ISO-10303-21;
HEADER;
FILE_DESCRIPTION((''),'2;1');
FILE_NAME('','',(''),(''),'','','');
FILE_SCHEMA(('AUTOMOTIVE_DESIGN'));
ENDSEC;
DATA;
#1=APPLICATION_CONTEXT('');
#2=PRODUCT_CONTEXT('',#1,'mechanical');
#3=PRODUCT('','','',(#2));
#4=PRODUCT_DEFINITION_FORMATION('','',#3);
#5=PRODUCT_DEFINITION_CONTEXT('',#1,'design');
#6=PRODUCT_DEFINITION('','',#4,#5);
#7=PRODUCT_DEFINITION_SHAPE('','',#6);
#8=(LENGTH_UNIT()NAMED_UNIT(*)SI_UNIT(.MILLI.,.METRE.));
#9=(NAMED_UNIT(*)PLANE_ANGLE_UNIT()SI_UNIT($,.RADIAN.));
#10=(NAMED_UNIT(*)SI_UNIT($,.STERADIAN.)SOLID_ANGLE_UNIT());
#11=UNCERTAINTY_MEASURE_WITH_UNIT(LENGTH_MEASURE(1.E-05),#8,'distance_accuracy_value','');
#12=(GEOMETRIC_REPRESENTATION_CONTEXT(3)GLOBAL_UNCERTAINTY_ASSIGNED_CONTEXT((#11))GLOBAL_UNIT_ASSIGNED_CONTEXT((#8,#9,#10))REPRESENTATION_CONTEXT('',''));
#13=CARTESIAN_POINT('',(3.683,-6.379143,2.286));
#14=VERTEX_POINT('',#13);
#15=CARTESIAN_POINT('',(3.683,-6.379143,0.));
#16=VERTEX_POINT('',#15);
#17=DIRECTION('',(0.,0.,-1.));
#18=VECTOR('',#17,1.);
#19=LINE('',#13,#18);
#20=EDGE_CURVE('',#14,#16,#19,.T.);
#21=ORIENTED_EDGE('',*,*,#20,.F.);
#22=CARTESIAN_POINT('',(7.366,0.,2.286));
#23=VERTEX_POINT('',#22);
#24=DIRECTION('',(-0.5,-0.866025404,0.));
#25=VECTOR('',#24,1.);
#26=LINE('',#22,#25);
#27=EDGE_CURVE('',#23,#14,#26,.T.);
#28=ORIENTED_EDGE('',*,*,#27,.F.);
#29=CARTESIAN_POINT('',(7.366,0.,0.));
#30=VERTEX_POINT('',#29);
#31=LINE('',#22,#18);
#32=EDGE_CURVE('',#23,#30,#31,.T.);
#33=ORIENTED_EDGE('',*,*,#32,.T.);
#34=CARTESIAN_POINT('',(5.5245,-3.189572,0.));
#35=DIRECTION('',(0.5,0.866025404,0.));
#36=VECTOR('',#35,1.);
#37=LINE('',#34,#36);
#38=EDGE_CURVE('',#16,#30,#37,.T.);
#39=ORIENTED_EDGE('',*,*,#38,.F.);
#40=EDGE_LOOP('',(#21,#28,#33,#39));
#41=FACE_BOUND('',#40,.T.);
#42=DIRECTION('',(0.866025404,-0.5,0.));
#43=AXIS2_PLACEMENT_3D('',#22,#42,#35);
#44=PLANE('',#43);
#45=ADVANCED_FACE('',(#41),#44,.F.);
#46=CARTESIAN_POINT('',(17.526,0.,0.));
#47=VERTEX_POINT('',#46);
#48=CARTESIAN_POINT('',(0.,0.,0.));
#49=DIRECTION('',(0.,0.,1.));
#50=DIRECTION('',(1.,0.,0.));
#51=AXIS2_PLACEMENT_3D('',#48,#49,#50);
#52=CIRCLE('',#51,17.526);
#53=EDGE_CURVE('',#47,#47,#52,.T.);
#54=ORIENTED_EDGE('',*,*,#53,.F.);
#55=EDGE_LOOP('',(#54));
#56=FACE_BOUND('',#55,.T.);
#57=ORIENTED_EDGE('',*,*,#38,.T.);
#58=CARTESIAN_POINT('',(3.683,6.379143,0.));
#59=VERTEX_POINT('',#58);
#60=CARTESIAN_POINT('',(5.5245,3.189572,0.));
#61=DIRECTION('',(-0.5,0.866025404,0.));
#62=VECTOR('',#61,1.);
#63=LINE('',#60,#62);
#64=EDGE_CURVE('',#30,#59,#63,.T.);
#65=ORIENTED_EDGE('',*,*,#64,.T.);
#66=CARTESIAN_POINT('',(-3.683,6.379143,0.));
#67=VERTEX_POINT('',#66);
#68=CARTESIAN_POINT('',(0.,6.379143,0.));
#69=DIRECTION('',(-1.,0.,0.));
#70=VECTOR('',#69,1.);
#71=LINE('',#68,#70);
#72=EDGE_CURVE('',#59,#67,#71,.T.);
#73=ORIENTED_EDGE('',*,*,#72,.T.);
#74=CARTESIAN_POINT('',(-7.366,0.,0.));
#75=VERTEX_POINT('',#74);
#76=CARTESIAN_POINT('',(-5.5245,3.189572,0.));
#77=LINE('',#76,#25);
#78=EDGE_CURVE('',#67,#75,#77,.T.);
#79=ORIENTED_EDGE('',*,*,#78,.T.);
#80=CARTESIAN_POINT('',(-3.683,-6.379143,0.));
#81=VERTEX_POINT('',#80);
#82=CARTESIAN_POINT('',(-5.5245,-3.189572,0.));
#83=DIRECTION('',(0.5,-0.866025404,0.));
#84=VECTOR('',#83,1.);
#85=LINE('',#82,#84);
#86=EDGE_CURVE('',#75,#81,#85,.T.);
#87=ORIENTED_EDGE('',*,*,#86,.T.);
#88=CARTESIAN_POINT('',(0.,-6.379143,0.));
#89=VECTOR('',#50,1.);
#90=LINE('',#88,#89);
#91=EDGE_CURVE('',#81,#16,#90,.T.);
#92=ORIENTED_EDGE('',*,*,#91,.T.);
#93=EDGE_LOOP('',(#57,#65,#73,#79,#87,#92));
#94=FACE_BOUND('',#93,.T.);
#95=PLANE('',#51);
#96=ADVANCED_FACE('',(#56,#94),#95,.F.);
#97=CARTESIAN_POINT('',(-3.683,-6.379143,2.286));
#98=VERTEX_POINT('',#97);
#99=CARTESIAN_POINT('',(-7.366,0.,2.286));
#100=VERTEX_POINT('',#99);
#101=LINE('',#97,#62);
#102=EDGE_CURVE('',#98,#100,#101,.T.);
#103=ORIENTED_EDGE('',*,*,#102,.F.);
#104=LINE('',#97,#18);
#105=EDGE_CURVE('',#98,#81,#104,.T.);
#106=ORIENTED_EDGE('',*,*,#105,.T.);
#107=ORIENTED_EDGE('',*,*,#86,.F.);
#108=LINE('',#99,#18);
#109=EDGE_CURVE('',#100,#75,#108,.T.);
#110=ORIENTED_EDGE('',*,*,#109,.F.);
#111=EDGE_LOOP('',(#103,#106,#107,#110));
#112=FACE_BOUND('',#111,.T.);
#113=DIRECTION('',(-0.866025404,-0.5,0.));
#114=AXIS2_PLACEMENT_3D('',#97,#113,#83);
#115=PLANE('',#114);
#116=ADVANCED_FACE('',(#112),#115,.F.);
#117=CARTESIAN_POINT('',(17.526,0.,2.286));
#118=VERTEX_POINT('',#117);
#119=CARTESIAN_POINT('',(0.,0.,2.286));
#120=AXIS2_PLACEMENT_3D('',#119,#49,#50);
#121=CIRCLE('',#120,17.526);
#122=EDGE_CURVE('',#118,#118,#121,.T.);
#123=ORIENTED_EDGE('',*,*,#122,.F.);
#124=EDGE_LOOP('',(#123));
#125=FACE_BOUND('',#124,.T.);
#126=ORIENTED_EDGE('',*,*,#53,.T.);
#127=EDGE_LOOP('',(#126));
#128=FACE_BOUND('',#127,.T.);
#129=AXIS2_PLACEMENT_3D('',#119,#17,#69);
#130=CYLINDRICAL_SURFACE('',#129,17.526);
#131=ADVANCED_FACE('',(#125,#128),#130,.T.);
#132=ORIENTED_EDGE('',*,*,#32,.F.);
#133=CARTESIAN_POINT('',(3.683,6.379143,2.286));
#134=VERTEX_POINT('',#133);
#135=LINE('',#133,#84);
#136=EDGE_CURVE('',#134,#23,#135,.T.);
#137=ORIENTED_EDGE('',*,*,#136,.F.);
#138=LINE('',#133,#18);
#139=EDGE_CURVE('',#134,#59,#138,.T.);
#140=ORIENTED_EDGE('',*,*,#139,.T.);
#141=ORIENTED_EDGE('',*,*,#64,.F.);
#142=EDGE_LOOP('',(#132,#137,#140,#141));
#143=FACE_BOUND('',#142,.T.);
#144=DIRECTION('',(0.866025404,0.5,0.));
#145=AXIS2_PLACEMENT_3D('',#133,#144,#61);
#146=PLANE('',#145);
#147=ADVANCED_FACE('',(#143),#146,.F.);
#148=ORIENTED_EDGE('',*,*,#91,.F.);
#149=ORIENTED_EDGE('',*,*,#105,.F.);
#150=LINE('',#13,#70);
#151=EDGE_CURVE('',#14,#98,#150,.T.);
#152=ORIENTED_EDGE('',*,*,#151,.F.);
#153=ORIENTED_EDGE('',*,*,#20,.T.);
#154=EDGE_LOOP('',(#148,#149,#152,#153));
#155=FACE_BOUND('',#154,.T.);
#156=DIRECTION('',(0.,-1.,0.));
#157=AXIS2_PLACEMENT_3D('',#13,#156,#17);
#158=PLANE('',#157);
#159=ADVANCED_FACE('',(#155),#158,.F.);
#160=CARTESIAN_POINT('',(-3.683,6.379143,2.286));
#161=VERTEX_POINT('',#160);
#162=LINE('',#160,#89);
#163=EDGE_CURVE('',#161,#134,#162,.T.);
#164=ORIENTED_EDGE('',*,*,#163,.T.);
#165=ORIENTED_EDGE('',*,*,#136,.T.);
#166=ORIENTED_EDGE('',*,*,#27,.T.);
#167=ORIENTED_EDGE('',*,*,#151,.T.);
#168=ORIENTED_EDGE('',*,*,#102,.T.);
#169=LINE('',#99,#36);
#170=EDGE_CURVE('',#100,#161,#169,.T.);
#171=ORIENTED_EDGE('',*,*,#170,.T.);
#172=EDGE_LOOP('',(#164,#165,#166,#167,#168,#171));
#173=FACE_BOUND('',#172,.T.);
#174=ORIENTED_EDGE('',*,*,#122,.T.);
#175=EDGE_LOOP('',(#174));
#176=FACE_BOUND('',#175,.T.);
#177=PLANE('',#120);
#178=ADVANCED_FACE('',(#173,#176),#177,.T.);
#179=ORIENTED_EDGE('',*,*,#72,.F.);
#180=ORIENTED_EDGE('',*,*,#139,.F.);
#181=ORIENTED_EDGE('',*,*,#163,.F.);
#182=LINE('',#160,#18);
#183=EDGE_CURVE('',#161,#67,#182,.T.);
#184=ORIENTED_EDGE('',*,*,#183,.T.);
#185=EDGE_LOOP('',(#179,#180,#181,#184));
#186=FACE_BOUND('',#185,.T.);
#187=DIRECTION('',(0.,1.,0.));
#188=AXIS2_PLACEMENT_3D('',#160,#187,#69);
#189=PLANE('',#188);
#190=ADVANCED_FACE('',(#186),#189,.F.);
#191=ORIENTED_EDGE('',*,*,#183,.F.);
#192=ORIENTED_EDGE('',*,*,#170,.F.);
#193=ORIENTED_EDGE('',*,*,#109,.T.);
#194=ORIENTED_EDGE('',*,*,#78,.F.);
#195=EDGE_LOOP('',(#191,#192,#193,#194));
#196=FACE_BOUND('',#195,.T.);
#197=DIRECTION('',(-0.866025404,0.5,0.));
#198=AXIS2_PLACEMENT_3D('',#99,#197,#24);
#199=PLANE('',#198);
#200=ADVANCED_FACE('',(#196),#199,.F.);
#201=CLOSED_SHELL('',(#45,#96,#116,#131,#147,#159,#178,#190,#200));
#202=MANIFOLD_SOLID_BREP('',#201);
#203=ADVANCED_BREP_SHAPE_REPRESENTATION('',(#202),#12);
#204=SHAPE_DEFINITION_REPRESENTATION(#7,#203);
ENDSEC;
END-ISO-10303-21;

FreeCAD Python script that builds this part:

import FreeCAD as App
import Part
import Sketcher

V = App.Vector
Q = App.Units.Quantity

doc = App.newDocument("Part")
body = doc.addObject("PartDesign::Body", "Body")

# Sketch on XY plane
sketch1 = doc.addObject("Sketcher::SketchObject", "Sketch")
body.addObject(sketch1)
sketch1.AttachmentSupport = (doc.XY_Plane, [""])
sketch1.MapMode = "FlatFace"
sketch1.addGeometry(Part.Circle(V(0, 0, 0), V(0, 0, 1), 17.526), False)
sketch1.addConstraint(Sketcher.Constraint("Coincident", 0, 3, -1, 1))
sketch1.addConstraint(Sketcher.Constraint("Diameter", 0, Q("1.38 in")))
pad1 = doc.addObject("PartDesign::Pad", "Pad")
body.addObject(pad1)
pad1.Profile = sketch1
pad1.Length = Q("0.09 in")

# Sketch on XY plane
sketch2 = doc.addObject("Sketcher::SketchObject", "Sketch001")
body.addObject(sketch2)
sketch2.AttachmentSupport = (doc.XY_Plane, [""])
sketch2.MapMode = "FlatFace"
sketch2.addGeometry(Part.LineSegment(V(-3.683, 6.379143, 0), V(3.683, 6.379143, 0)), False)
sketch2.addGeometry(Part.LineSegment(V(3.683, 6.379143, 0), V(7.366, 0, 0)), False)
sketch2.addGeometry(Part.LineSegment(V(7.366, 0, 0), V(3.683, -6.379143, 0)), False)
sketch2.addGeometry(Part.LineSegment(V(3.683, -6.379143, 0), V(-3.683, -6.379143, 0)), False)
sketch2.addGeometry(Part.LineSegment(V(-3.683, -6.379143, 0), V(-7.366, 0, 0)), False)
sketch2.addGeometry(Part.LineSegment(V(-7.366, 0, 0), V(-3.683, 6.379143, 0)), False)
sketch2.addConstraint(Sketcher.Constraint("Coincident", 0, 2, 1, 1))
sketch2.addConstraint(Sketcher.Constraint("Coincident", 1, 2, 2, 1))
sketch2.addConstraint(Sketcher.Constraint("Coincident", 2, 2, 3, 1))
sketch2.addConstraint(Sketcher.Constraint("Coincident", 3, 2, 4, 1))
sketch2.addConstraint(Sketcher.Constraint("Coincident", 4, 2, 5, 1))
sketch2.addConstraint(Sketcher.Constraint("Coincident", 5, 2, 0, 1))
sketch2.addConstraint(Sketcher.Constraint("Horizontal", 0))
sketch2.addConstraint(Sketcher.Constraint("Horizontal", 3))
sketch2.addConstraint(Sketcher.Constraint("Symmetric", 0, 2, 3, 2, -1, 1))
sketch2.addConstraint(Sketcher.Constraint("Symmetric", 1, 2, 4, 2, -1, 1))
sketch2.addConstraint(Sketcher.Constraint("PointOnObject", 1, 2, -1))
sketch2.addConstraint(Sketcher.Constraint("Parallel", 2, 5))
sketch2.addConstraint(Sketcher.Constraint("Vertical", 0, 2, 2, 2))
sketch2.addConstraint(Sketcher.Constraint("Angle", 1, Q("-60 deg")))
sketch2.addConstraint(Sketcher.Constraint("DistanceX", 0, 1, 0, 2, Q("0.29 in")))
sketch2.addConstraint(Sketcher.Constraint("Distance", 1, Q("0.29 in")))
pocket1 = doc.addObject("PartDesign::Pocket", "Pocket")
body.addObject(pocket1)
pocket1.Profile = sketch2
pocket1.Type = "ThroughAll"
pocket1.Midplane = True

doc.recompute()
